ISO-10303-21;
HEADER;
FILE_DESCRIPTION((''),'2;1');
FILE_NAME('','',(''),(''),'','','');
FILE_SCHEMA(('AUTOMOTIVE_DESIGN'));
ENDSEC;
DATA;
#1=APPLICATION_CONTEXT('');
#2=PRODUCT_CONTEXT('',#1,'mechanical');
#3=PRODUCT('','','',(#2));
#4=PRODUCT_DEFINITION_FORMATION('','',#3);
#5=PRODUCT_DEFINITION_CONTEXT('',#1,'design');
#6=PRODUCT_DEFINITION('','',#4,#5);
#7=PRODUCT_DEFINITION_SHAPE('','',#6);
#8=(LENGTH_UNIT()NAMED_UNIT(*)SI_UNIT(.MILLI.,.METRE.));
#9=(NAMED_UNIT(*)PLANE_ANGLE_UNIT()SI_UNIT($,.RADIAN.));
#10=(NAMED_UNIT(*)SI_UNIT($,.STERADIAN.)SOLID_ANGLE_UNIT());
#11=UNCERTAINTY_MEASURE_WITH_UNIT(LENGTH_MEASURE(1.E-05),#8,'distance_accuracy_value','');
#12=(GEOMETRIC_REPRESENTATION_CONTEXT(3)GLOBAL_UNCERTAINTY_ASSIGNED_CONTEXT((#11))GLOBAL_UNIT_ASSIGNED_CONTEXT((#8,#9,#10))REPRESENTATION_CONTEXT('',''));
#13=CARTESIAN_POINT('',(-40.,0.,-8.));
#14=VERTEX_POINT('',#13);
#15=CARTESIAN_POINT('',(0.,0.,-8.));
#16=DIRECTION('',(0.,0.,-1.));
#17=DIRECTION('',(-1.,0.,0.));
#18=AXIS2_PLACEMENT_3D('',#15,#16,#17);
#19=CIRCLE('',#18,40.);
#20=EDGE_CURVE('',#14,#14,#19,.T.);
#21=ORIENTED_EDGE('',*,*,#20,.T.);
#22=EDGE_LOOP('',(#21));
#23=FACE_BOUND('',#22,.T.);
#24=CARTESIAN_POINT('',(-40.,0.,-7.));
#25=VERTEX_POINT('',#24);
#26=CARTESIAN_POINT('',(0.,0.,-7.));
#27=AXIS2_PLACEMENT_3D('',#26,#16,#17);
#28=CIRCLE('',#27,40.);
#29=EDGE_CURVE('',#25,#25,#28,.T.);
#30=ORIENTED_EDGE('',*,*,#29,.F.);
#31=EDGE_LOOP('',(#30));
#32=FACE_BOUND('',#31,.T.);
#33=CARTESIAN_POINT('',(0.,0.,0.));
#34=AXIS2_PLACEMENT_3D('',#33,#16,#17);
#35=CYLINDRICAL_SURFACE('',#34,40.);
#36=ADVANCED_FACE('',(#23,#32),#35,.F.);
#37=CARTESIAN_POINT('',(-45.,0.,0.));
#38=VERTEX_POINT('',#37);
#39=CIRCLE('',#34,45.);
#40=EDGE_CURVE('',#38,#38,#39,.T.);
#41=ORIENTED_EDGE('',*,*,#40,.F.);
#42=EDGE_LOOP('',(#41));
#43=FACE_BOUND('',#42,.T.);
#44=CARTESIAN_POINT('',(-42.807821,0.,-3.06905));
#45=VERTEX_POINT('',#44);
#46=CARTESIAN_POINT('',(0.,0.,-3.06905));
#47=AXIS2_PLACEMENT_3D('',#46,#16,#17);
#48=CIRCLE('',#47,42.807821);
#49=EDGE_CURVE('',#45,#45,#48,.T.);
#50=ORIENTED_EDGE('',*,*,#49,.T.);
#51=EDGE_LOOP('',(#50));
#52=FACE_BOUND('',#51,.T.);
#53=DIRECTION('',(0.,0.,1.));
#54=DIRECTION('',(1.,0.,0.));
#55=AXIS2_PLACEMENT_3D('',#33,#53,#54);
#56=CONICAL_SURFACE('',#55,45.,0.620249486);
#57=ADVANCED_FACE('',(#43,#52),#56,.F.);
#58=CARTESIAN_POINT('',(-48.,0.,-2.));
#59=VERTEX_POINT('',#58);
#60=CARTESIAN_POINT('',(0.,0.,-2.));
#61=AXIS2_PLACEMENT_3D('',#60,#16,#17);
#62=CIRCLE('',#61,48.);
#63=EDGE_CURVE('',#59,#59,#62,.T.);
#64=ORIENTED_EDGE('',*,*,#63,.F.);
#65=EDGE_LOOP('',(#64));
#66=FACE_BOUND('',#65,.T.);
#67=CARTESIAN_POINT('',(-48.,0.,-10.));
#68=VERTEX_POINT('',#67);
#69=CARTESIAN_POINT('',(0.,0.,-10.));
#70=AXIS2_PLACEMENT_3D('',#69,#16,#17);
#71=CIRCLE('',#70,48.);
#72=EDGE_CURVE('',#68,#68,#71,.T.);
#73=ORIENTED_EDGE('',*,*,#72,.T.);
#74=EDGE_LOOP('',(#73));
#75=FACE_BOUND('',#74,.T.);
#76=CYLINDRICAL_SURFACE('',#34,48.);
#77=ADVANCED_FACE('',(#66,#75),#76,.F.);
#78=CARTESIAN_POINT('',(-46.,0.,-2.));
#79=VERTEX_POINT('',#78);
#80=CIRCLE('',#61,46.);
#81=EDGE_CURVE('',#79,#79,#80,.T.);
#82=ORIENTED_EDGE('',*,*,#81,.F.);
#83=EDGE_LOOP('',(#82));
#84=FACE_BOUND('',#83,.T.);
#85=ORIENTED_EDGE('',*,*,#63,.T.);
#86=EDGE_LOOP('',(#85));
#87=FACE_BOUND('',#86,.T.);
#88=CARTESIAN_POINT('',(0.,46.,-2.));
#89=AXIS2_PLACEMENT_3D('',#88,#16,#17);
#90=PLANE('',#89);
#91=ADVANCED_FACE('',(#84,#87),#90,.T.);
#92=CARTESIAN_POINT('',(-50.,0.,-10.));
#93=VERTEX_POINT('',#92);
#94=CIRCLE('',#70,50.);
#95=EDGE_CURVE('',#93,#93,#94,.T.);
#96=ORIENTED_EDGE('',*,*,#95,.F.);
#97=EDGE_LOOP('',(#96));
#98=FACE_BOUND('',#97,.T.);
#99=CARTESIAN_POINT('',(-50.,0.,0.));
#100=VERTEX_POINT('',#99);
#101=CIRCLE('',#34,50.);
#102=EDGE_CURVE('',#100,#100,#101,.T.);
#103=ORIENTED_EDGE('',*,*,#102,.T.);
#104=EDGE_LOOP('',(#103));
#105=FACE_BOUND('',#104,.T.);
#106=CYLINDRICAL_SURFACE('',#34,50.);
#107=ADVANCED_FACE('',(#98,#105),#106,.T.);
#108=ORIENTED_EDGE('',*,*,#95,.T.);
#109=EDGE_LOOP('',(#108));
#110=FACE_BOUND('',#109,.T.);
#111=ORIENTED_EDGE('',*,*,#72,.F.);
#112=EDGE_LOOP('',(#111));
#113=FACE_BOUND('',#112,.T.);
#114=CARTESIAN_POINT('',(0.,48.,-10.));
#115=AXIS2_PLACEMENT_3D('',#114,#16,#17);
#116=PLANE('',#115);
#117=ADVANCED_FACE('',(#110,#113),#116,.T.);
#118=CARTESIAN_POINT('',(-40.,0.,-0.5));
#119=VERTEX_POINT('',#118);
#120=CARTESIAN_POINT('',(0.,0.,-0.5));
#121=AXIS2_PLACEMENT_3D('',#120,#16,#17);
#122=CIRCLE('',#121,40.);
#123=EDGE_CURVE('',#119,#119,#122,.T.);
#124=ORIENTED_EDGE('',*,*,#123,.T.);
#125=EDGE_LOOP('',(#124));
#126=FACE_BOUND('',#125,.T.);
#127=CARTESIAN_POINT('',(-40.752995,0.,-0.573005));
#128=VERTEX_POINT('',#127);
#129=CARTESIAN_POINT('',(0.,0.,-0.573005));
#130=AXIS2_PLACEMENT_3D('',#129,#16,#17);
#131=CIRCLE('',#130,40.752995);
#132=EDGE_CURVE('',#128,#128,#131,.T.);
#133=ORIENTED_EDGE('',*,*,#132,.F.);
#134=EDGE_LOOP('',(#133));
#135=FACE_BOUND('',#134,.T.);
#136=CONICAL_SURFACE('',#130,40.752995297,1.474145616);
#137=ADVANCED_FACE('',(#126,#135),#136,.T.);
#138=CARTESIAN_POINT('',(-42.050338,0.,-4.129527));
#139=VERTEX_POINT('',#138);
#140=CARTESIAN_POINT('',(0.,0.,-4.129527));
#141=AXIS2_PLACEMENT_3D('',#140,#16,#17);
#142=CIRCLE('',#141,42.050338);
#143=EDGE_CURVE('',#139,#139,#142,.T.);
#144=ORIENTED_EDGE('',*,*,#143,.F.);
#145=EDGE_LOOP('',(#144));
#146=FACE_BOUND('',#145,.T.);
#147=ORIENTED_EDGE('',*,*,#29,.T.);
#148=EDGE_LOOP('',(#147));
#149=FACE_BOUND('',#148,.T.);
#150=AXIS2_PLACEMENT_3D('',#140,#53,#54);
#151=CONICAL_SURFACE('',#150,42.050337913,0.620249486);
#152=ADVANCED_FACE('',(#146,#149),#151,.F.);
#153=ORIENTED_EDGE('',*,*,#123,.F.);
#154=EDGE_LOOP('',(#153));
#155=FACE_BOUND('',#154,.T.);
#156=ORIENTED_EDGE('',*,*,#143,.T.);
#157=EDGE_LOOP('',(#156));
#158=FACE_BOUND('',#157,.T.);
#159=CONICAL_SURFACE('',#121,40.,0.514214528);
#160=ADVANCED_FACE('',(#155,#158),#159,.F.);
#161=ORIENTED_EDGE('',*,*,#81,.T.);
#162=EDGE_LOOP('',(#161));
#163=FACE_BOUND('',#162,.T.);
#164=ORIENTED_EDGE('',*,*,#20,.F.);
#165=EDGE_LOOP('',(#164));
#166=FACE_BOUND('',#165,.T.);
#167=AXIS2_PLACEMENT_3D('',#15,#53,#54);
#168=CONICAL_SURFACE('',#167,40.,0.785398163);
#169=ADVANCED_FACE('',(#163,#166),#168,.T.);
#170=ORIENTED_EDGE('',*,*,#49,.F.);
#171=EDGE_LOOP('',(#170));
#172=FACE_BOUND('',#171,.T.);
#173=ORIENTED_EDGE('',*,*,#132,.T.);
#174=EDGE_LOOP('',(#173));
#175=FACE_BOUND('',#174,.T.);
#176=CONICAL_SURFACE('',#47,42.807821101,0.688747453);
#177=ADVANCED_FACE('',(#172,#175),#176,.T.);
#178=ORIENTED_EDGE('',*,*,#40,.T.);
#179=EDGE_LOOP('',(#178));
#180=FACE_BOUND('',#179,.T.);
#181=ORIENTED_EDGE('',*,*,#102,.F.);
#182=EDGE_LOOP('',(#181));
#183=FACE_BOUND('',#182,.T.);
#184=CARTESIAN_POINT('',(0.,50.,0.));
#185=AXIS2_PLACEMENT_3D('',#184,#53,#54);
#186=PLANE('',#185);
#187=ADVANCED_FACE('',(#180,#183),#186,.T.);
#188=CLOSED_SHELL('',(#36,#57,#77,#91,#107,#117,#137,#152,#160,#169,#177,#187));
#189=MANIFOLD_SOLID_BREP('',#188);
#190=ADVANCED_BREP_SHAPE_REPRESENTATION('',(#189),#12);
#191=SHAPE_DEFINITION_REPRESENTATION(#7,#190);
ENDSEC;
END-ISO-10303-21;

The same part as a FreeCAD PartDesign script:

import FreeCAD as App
import Part
import Sketcher

V = App.Vector
Q = App.Units.Quantity

doc = App.newDocument("Part")
body = doc.addObject("PartDesign::Body", "Body")

sketch1 = body.newObject("Sketcher::SketchObject", "Sketch")
sketch1.AttachmentSupport = (doc.getObject("YZ_Plane"), [""])
sketch1.MapMode = "FlatFace"
sketch1.addGeometry([
    Part.LineSegment(V(50, -10, 0), V(50, 0, 0)),
    Part.LineSegment(V(50, 0, 0), V(45, 0, 0)),
    Part.LineSegment(V(45, 0, 0), V(42.807821, -3.06905, 0)),
    Part.LineSegment(V(42.807821, -3.06905, 0), V(40.752995, -0.573005, 0)),
    Part.LineSegment(V(40.752995, -0.573005, 0), V(40, -0.5, 0)),
    Part.LineSegment(V(40, -0.5, 0), V(42.050338, -4.129527, 0)),
    Part.LineSegment(V(42.050338, -4.129527, 0), V(40, -7, 0)),
    Part.LineSegment(V(40, -7, 0), V(40, -8, 0)),
    Part.LineSegment(V(40, -8, 0), V(46, -2, 0)),
    Part.LineSegment(V(46, -2, 0), V(48, -2, 0)),
    Part.LineSegment(V(48, -2, 0), V(48, -10, 0)),
    Part.LineSegment(V(48, -10, 0), V(50, -10, 0)),
], False)
sketch1.addConstraint([
    Sketcher.Constraint("Coincident", 0, 2, 1, 1),
    Sketcher.Constraint("Coincident", 1, 2, 2, 1),
    Sketcher.Constraint("Coincident", 2, 2, 3, 1),
    Sketcher.Constraint("Coincident", 3, 2, 4, 1),
    Sketcher.Constraint("Coincident", 4, 2, 5, 1),
    Sketcher.Constraint("Coincident", 5, 2, 6, 1),
    Sketcher.Constraint("Coincident", 6, 2, 7, 1),
    Sketcher.Constraint("Coincident", 7, 2, 8, 1),
    Sketcher.Constraint("Coincident", 8, 2, 9, 1),
    Sketcher.Constraint("Coincident", 9, 2, 10, 1),
    Sketcher.Constraint("Coincident", 10, 2, 11, 1),
    Sketcher.Constraint("Coincident", 11, 2, 0, 1),
    Sketcher.Constraint("Vertical", 0),
    Sketcher.Constraint("Horizontal", 1),
    Sketcher.Constraint("Vertical", 7),
    Sketcher.Constraint("Horizontal", 9),
    Sketcher.Constraint("Vertical", 10),
    Sketcher.Constraint("Horizontal", 11),
    Sketcher.Constraint("PointOnObject", 0, 2, -1),
    Sketcher.Constraint("Parallel", 2, 6),
    Sketcher.Constraint("Vertical", 4, 2, 6, 2),
    Sketcher.Constraint("Equal", 9, 11),
    Sketcher.Constraint("DistanceX", 1, 2, 1, 1, 5.0),
    Sketcher.Constraint("DistanceX", 9, 1, 9, 2, 2.0),
    Sketcher.Constraint("DistanceY", 0, 1, 0, 2, 10.0),
    Sketcher.Constraint("DistanceY", 7, 2, 7, 1, 1.0),
    Sketcher.Constraint("DistanceY", 10, 2, 10, 1, 8.0),
    Sketcher.Constraint("Angle", 8, Q("45 deg")),
    Sketcher.Constraint("DistanceX", -1, 1, 0, 2, 50.0),
    Sketcher.Constraint("DistanceX", -1, 1, 4, 2, 40.0),
    Sketcher.Constraint("DistanceY", 4, 2, -1, 1, 0.5),
    Sketcher.Constraint("Distance", 3, 3.233041),
    Sketcher.Constraint("DistanceX", -1, 1, 2, 2, 42.807821),
    Sketcher.Constraint("DistanceY", 2, 2, -1, 1, 3.06905),
    Sketcher.Constraint("DistanceY", 5, 2, 3, 2, 3.556522),
    Sketcher.Constraint("Distance", 4, 0.756526),
])
revolution = body.newObject("PartDesign::Revolution", "Revolution")
revolution.Profile = sketch1
revolution.ReferenceAxis = (sketch1, ["V_Axis"])
revolution.Angle = 360

doc.recompute()
